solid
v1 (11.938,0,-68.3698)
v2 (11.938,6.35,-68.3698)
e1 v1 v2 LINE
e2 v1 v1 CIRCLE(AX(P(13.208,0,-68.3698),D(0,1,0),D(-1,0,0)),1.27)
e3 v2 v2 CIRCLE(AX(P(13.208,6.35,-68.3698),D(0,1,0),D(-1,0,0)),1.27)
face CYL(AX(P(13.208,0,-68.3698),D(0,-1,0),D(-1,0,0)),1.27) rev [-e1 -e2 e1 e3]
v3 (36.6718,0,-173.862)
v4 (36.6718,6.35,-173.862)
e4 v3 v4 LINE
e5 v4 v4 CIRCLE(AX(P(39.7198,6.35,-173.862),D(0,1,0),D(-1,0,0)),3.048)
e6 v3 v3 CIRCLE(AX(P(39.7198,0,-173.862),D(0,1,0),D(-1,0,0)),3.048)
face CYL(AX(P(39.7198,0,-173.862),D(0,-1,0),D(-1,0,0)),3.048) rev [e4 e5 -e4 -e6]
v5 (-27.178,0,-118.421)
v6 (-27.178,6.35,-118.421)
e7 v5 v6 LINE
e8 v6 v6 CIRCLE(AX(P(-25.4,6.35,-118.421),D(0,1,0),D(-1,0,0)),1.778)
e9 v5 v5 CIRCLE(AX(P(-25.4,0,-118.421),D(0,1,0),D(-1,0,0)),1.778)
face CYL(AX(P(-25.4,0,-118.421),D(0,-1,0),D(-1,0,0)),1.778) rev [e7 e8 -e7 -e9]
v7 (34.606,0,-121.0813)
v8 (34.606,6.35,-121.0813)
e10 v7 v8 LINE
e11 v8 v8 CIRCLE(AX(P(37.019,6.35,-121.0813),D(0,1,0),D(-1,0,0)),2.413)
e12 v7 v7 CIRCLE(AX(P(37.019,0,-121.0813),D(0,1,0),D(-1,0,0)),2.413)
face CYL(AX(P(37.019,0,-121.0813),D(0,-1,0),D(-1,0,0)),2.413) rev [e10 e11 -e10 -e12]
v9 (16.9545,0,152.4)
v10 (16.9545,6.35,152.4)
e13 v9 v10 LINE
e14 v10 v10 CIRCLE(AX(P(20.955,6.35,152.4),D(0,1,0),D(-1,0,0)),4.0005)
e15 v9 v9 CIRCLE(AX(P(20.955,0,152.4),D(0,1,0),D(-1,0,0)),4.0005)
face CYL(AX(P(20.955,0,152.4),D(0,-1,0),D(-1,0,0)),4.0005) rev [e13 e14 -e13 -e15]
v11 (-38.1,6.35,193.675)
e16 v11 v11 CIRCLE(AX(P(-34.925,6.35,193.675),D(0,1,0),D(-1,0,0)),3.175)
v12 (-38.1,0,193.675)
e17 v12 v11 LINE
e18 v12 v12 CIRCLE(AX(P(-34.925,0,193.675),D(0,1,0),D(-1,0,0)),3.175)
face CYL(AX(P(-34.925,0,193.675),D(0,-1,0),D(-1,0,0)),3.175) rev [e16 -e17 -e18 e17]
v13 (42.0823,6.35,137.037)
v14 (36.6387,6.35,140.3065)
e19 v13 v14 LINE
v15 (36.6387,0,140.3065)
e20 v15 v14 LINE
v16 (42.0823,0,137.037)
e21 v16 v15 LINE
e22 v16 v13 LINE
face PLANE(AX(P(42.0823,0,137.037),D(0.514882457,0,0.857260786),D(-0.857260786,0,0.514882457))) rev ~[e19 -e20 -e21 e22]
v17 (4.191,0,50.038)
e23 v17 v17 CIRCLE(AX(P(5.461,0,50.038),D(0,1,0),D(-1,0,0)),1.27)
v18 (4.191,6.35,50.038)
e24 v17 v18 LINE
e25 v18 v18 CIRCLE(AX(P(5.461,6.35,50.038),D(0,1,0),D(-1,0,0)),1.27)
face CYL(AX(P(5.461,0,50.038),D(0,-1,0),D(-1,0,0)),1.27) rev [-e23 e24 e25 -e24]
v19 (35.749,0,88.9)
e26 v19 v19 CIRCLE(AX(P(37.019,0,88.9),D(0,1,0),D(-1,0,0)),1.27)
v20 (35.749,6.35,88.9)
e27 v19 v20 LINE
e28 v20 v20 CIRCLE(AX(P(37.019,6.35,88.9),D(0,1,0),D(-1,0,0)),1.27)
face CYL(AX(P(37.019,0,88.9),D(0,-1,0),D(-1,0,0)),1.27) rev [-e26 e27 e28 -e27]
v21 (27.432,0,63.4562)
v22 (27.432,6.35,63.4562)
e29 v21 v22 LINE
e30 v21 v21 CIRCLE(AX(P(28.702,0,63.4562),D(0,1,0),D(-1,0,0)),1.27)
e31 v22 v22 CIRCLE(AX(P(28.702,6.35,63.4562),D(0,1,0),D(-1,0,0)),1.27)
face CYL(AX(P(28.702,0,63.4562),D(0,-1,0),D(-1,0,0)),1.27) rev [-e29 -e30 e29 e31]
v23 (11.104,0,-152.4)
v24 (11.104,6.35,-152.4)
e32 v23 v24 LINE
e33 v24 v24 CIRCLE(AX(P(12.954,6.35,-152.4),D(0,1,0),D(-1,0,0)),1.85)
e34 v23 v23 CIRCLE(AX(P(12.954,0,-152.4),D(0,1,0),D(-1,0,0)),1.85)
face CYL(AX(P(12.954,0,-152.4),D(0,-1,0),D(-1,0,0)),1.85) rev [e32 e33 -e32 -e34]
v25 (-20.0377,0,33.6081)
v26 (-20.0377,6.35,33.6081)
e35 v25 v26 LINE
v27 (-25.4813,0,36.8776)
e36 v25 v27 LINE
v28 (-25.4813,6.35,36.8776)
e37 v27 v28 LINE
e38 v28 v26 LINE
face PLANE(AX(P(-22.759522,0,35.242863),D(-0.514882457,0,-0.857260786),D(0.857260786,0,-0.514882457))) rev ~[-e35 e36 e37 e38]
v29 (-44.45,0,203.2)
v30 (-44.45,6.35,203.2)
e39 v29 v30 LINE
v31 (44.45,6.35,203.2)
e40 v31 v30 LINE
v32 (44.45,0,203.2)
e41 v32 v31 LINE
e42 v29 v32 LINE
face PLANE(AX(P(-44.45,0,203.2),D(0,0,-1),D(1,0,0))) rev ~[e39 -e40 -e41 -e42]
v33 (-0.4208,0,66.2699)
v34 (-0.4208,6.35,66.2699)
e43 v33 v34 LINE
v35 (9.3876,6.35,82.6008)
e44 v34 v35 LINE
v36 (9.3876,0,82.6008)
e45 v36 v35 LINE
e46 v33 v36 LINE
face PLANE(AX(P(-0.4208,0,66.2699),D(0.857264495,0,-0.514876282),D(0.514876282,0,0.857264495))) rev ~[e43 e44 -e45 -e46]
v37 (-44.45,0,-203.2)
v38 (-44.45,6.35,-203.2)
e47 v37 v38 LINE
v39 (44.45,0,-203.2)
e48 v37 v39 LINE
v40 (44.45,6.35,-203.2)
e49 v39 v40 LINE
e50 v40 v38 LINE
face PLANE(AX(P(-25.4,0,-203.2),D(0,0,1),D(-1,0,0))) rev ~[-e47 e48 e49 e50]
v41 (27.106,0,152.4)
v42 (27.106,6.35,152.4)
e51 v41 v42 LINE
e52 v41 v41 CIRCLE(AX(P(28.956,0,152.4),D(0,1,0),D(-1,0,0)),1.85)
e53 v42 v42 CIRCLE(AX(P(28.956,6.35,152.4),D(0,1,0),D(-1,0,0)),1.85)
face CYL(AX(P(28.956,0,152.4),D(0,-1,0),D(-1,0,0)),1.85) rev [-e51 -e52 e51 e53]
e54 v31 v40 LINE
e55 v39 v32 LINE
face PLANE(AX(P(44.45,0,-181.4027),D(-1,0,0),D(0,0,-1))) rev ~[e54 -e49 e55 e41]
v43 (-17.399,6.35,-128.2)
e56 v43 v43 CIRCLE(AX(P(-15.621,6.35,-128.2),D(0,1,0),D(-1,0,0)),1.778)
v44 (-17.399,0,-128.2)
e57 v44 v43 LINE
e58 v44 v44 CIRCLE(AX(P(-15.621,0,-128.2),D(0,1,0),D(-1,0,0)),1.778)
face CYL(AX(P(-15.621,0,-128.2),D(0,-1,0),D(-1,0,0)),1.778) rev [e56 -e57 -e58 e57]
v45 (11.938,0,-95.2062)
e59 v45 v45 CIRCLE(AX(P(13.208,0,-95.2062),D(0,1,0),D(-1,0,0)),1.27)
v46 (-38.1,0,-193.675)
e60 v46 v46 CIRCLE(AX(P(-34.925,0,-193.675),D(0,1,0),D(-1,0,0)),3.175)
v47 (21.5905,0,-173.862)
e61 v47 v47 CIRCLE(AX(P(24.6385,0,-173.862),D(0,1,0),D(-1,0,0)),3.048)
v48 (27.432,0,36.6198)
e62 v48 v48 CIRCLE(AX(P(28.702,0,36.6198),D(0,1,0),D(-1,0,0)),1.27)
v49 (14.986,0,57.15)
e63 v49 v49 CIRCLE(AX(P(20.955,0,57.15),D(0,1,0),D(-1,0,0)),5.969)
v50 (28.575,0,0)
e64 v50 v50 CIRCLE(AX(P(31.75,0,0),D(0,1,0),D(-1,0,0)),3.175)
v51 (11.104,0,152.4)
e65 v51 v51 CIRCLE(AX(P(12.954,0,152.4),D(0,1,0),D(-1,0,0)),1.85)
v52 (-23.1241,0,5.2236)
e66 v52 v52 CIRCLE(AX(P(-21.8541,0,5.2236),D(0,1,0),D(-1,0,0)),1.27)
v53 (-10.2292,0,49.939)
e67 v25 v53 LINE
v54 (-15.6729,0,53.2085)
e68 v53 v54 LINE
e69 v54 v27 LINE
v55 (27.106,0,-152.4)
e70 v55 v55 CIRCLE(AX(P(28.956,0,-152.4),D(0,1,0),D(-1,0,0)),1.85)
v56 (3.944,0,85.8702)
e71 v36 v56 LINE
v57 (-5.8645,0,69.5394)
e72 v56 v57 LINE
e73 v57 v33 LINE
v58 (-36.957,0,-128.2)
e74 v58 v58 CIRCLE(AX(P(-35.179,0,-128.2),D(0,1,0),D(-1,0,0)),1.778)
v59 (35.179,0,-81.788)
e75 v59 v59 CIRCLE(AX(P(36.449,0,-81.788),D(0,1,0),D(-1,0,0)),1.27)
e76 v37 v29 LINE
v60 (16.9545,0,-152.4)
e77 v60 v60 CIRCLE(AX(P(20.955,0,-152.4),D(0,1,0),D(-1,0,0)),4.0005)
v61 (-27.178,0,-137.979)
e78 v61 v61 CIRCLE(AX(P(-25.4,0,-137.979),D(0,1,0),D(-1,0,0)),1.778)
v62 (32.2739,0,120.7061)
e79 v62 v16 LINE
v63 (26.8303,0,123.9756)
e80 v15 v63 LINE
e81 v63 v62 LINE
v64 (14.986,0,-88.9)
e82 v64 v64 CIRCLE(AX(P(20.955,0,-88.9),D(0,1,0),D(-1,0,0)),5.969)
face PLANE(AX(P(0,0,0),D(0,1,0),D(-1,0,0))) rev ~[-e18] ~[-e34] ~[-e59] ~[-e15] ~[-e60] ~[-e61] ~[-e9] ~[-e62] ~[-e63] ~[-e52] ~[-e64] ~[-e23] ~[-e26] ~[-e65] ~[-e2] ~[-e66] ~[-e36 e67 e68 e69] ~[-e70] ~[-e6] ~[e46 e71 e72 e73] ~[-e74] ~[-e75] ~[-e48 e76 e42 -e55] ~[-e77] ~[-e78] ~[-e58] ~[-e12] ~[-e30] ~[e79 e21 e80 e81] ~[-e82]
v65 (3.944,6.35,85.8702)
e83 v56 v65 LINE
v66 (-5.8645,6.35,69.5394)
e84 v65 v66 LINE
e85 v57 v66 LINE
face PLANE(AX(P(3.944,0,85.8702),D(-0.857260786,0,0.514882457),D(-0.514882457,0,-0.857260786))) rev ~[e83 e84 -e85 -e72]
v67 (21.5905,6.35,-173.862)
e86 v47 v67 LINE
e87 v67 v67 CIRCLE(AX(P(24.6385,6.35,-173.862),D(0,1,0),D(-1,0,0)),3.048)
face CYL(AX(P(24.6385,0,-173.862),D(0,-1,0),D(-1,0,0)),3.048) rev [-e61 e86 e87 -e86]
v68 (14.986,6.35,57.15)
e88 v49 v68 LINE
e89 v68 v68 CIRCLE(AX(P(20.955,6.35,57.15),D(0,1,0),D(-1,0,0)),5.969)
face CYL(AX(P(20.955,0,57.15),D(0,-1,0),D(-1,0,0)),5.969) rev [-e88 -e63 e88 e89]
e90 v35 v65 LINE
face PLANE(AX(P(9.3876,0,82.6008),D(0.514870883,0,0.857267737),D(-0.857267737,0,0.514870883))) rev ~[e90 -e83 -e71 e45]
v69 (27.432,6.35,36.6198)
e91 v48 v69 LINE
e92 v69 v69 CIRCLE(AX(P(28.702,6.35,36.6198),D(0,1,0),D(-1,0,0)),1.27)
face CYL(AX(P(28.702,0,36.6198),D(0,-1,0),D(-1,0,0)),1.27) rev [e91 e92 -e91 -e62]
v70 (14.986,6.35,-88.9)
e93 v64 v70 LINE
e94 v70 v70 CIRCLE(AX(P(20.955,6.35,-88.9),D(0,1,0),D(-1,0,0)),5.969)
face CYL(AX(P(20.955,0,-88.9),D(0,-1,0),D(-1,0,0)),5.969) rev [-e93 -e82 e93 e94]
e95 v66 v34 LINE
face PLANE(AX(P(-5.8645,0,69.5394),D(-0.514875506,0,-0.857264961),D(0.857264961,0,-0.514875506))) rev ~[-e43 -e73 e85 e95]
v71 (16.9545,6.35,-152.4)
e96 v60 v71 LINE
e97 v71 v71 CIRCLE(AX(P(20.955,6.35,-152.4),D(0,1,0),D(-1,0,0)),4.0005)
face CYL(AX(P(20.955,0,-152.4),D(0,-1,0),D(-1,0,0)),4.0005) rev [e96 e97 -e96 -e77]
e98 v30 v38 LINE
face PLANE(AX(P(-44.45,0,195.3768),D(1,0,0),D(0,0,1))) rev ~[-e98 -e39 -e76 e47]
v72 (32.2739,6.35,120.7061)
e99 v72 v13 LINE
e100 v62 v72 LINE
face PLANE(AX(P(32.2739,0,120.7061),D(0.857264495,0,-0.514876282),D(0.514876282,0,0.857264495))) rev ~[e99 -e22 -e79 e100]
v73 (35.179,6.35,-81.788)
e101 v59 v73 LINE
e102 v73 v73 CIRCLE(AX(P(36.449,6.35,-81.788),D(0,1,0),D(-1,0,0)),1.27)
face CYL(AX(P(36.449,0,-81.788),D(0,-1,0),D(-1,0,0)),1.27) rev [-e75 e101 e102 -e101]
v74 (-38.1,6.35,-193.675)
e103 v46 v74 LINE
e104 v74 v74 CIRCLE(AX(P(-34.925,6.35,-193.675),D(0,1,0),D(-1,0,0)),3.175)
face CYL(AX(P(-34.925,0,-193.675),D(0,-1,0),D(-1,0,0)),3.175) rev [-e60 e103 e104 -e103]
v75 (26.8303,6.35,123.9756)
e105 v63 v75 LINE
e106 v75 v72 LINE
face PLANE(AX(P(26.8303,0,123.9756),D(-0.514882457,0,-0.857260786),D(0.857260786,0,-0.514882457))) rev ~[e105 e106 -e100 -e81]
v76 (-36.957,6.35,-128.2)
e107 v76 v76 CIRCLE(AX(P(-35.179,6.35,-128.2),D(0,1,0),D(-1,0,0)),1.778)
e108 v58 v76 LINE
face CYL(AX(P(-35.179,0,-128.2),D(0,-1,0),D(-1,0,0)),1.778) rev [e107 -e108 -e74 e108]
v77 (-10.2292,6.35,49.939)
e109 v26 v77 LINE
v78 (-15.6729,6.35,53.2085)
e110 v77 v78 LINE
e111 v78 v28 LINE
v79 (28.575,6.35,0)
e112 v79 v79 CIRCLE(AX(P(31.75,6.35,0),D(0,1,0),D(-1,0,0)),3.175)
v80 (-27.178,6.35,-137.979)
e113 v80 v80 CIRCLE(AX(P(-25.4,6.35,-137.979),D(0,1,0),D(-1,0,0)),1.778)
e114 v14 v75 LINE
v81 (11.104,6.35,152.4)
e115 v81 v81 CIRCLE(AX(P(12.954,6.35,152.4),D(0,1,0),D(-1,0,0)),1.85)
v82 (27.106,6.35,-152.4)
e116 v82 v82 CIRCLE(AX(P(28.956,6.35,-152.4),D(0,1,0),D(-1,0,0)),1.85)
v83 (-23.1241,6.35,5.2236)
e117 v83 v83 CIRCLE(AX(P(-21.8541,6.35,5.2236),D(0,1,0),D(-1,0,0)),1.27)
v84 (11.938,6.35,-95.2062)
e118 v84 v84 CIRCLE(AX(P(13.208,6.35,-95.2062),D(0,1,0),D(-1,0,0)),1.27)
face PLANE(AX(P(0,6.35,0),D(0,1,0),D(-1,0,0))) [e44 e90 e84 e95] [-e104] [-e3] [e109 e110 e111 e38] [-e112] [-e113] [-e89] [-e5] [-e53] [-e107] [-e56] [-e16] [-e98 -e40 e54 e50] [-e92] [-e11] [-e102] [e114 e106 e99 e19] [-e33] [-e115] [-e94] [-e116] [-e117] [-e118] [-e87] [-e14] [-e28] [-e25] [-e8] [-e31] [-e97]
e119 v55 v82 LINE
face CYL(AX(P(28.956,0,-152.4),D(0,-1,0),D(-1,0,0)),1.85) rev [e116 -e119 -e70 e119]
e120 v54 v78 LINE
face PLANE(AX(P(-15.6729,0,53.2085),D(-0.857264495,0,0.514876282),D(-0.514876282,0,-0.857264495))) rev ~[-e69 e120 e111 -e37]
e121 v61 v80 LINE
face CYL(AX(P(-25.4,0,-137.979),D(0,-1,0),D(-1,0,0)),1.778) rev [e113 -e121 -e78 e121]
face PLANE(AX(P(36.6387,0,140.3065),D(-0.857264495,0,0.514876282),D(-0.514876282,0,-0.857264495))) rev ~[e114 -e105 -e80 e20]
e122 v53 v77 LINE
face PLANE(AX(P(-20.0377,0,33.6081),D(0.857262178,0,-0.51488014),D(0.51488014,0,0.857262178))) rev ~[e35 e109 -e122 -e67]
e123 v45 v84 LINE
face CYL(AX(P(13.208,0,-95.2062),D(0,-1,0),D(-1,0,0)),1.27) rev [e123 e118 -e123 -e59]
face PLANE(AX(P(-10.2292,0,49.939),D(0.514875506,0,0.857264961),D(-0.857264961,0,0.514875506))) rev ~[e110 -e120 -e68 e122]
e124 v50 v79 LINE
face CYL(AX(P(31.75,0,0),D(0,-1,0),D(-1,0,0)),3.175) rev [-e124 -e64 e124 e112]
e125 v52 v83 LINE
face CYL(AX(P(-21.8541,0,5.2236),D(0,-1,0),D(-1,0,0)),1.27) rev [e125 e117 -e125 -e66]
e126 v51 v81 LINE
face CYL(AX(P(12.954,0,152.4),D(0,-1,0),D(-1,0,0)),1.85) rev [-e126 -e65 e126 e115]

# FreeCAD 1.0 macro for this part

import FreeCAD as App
import Part
import Sketcher
from FreeCAD import Vector
Q = App.Units.Quantity


def add_polygon(sketch, points):
    """Adds a closed chain of lines whose ends are joined by coincident constraints."""
    first, n = sketch.GeometryCount, len(points)
    for a, b in zip(points, points[1:] + points[:1]):
        sketch.addGeometry(Part.LineSegment(App.Vector(*a, 0), App.Vector(*b, 0)), False)
    for i in range(n):
        sketch.addConstraint(Sketcher.Constraint("Coincident", first + i, 2, first + (i + 1) % n, 1))

doc = App.newDocument("Part")
params = doc.addObject("Spreadsheet::Sheet", "Params")
for row, (alias, value) in enumerate([
    ("sketch1_diameter", "0.1 in"),
    ("sketch1_diameter2", "0.24 in"),
    ("sketch1_diameter3", "0.19 in"),
    ("sketch1_diameter4", "0.25 in"),
    ("sketch1_diameter5", "0.47 in"),
    ("pad1_length", "0.25 in"),
], start=1):
    params.set(f"A{row}", alias)
    params.set(f"B{row}", "=" + value)
    params.setAlias(f"B{row}", alias)

body = doc.addObject("PartDesign::Body", "Body")

sketch1 = body.newObject("Sketcher::SketchObject", "Sketch")
sketch1.AttachmentSupport = (doc.getObject("XZ_Plane"), [""])
sketch1.MapMode = "FlatFace"
add_polygon(sketch1, [(-44.5, 203.2), (44.5, 203.2), (44.5, -203.2), (-44.5, -203.2)])
sketch1.addGeometry(Part.Circle(Vector(39.7, -173.9, 0), Vector(0, 0, 1), 3), False)
sketch1.addGeometry(Part.Circle(Vector(29, -152.4, 0), Vector(0, 0, 1), 1.9), False)
sketch1.addGeometry(Part.Circle(Vector(24.6, -173.9, 0), Vector(0, 0, 1), 3), False)
sketch1.addGeometry(Part.Circle(Vector(37, -121.1, 0), Vector(0, 0, 1), 2.4), False)
sketch1.addGeometry(Part.Circle(Vector(21, -152.4, 0), Vector(0, 0, 1), 4), False)
sketch1.addGeometry(Part.Circle(Vector(13, -152.4, 0), Vector(0, 0, 1), 1.9), False)
sketch1.addGeometry(Part.Circle(Vector(36.4, -81.8, 0), Vector(0, 0, 1), 1.3), False)
sketch1.addGeometry(Part.Circle(Vector(31.8, 0, 0), Vector(0, 0, 1), 3.2), False)
sketch1.addGeometry(Part.Circle(Vector(21, -88.9, 0), Vector(0, 0, 1), 6), False)
sketch1.addGeometry(Part.Circle(Vector(13.2, -95.2, 0), Vector(0, 0, 1), 1.3), False)
sketch1.addGeometry(Part.Circle(Vector(13.2, -68.4, 0), Vector(0, 0, 1), 1.3), False)
sketch1.addGeometry(Part.Circle(Vector(-15.6, -128.2, 0), Vector(0, 0, 1), 1.8), False)
sketch1.addGeometry(Part.Circle(Vector(-34.9, -193.7, 0), Vector(0, 0, 1), 3.2), False)
sketch1.addGeometry(Part.Circle(Vector(-25.4, -138, 0), Vector(0, 0, 1), 1.8), False)
sketch1.addGeometry(Part.Circle(Vector(-25.4, -118.4, 0), Vector(0, 0, 1), 1.8), False)
sketch1.addGeometry(Part.Circle(Vector(-35.2, -128.2, 0), Vector(0, 0, 1), 1.8), False)
sketch1.addGeometry(Part.Circle(Vector(28.7, 36.6, 0), Vector(0, 0, 1), 1.3), False)
sketch1.addGeometry(Part.Circle(Vector(37, 88.9, 0), Vector(0, 0, 1), 1.3), False)
sketch1.addGeometry(Part.Circle(Vector(28.7, 63.5, 0), Vector(0, 0, 1), 1.3), False)
sketch1.addGeometry(Part.Circle(Vector(5.5, 50, 0), Vector(0, 0, 1), 1.3), False)
sketch1.addGeometry(Part.Circle(Vector(21, 57.1, 0), Vector(0, 0, 1), 6), False)
add_polygon(sketch1, [(-0.4, 66.3), (9.4, 82.6), (3.9, 85.9), (-5.9, 69.5)])
add_polygon(sketch1, [(42.1, 137), (36.6, 140.3), (26.8, 124), (32.3, 120.7)])
sketch1.addGeometry(Part.Circle(Vector(29, 152.4, 0), Vector(0, 0, 1), 1.9), False)
sketch1.addGeometry(Part.Circle(Vector(21, 152.4, 0), Vector(0, 0, 1), 4), False)
sketch1.addGeometry(Part.Circle(Vector(13, 152.4, 0), Vector(0, 0, 1), 1.9), False)
sketch1.addGeometry(Part.Circle(Vector(-21.9, 5.2, 0), Vector(0, 0, 1), 1.3), False)
add_polygon(sketch1, [(-10.2, 49.9), (-15.7, 53.2), (-25.5, 36.9), (-20, 33.6)])
sketch1.addGeometry(Part.Circle(Vector(-34.9, 193.7, 0), Vector(0, 0, 1), 3.2), False)
sketch1.addConstraint([
    Sketcher.Constraint("Horizontal", 0),
    Sketcher.Constraint("Vertical", 1),
    Sketcher.Constraint("Horizontal", 2),
    Sketcher.Constraint("Vertical", 3),
    Sketcher.Constraint("Equal", 4, 6),
    Sketcher.Constraint("Equal", 5, 9),
    Sketcher.Constraint("Equal", 10, 13),
    Sketcher.Constraint("Equal", 13, 14),
    Sketcher.Constraint("Equal", 11, 16),
    Sketcher.Constraint("Equal", 15, 17),
    Sketcher.Constraint("Equal", 17, 18),
    Sketcher.Constraint("Equal", 18, 19),
    Sketcher.Constraint("Equal", 14, 20),
    Sketcher.Constraint("Equal", 20, 21),
    Sketcher.Constraint("Equal", 21, 22),
    Sketcher.Constraint("Equal", 22, 23),
    Sketcher.Constraint("Equal", 12, 24),
    Sketcher.Constraint("Equal", 9, 33),
    Sketcher.Constraint("Equal", 8, 34),
    Sketcher.Constraint("Equal", 33, 35),
    Sketcher.Constraint("Equal", 23, 36),
    Sketcher.Constraint("Equal", 16, 41),
    Sketcher.Constraint("Symmetric", 0, 2, 2, 2, -1, 1),
    Sketcher.Constraint("Symmetric", 5, 3, 33, 3, -1),
    Sketcher.Constraint("Symmetric", 8, 3, 34, 3, -1),
    Sketcher.Constraint("Symmetric", 9, 3, 35, 3, -1),
    Sketcher.Constraint("Symmetric", 16, 3, 41, 3, -1),
    Sketcher.Constraint("PointOnObject", 11, 3, -1),
    Sketcher.Constraint("Perpendicular", 25, 26),
    Sketcher.Constraint("Perpendicular", 26, 27),
    Sketcher.Constraint("Perpendicular", 27, 28),
    Sketcher.Constraint("Parallel", 28, 29),
    Sketcher.Constraint("Perpendicular", 29, 30),
    Sketcher.Constraint("Perpendicular", 30, 31),
    Sketcher.Constraint("Perpendicular", 31, 32),
    Sketcher.Constraint("Perpendicular", 32, 37),
    Sketcher.Constraint("Perpendicular", 37, 38),
    Sketcher.Constraint("Perpendicular", 38, 39),
    Sketcher.Constraint("Perpendicular", 39, 40),
    Sketcher.Constraint("Horizontal", 4, 3, 6, 3),
    Sketcher.Constraint("Horizontal", 5, 3, 8, 3),
    Sketcher.Constraint("Horizontal", 8, 3, 9, 3),
    Sketcher.Constraint("Horizontal", 15, 3, 19, 3),
    Sketcher.Constraint("Vertical", 8, 3, 12, 3),
    Sketcher.Constraint("Vertical", 13, 3, 14, 3),
    Sketcher.Constraint("Vertical", 17, 3, 18, 3),
    Sketcher.Constraint("Vertical", 7, 3, 21, 3),
    Sketcher.Constraint("Vertical", 20, 3, 22, 3),
    Sketcher.Constraint("Vertical", 12, 3, 24, 3),
    Sketcher.Constraint("Equal", 28, 29),
    Sketcher.Constraint("Equal", 27, 30),
    Sketcher.Constraint("Equal", 31, 37),
    Sketcher.Constraint("Equal", 32, 38),
    Sketcher.Constraint("Diameter", 10, Q("0.1 in")),
    Sketcher.Constraint("Diameter", 4, Q("0.24 in")),
    Sketcher.Constraint("Diameter", 7, Q("0.19 in")),
    Sketcher.Constraint("Diameter", 11, Q("0.25 in")),
    Sketcher.Constraint("Diameter", 12, Q("0.47 in")),
    Sketcher.Constraint("Diameter", 15, Q("0.14 in")),
    Sketcher.Constraint("DistanceY", 1, 2, 1, 1, Q("16 in")),
    Sketcher.Constraint("Diameter", 8, Q("0.315 in")),
    Sketcher.Constraint("DistanceX", 0, 1, 0, 2, Q("3.5 in")),
    Sketcher.Constraint("DistanceX", 17, 3, -1, 1, Q("1 in")),
    Sketcher.Constraint("DistanceY", 12, 3, -1, 1, Q("3.5 in")),
    Sketcher.Constraint("DistanceY", -1, 1, 21, 3, Q("3.5 in")),
    Sketcher.Constraint("DistanceY", 8, 3, 12, 3, Q("2.5 in")),
    Sketcher.Constraint("Distance", 25, Q("0.75 in")),
    Sketcher.Constraint("Distance", 26, Q("0.25 in")),
    Sketcher.Constraint("Diameter", 5, 3.7),
    Sketcher.Constraint("DistanceX", 9, 3, 5, 3, Q("0.63 in")),
    Sketcher.Constraint("DistanceY", 12, 3, 10, 3, Q("0.28 in")),
    Sketcher.Constraint("DistanceY", 17, 3, 18, 3, Q("0.77 in")),
    Sketcher.Constraint("DistanceX", 19, 3, 15, 3, Q("0.77 in")),
    Sketcher.Constraint("DistanceY", 23, 3, 24, 3, Q("0.28 in")),
    Sketcher.Constraint("DistanceX", 6, 3, 4, 3, Q("0.593752 in")),
    Sketcher.Constraint("DistanceX", 8, 3, 5, 3, Q("0.315 in")),
    Sketcher.Constraint("DistanceX", 16, 3, 17, 3, Q("0.375 in")),
    Sketcher.Constraint("DistanceY", 41, 3, 0, 2, Q("0.375 in")),
    Sketcher.Constraint("DistanceX", 16, 3, 8, 3, Q("2.2 in")),
    Sketcher.Constraint("DistanceX", -1, 1, 11, 3, Q("1.25 in")),
    Sketcher.Constraint("DistanceX", -1, 1, 13, 3, Q("0.52 in")),
    Sketcher.Constraint("DistanceX", -1, 1, 20, 3, Q("1.13 in")),
    Sketcher.Constraint("DistanceY", -1, 1, 23, 3, Q("1.97 in")),
    Sketcher.Constraint("Angle", 25, Q("59.0108 deg")),
    Sketcher.Constraint("DistanceX", 8, 3, 10, 3, Q("0.61 in")),
    Sketcher.Constraint("DistanceX", 15, 3, 8, 3, Q("1.44 in")),
    Sketcher.Constraint("DistanceY", 13, 3, 20, 3, Q("5.19 in")),
    Sketcher.Constraint("DistanceY", 14, 3, 22, 3, Q("5.19 in")),
    Sketcher.Constraint("DistanceX", 23, 3, 24, 3, Q("0.61 in")),
    Sketcher.Constraint("DistanceY", 2, 2, 19, 3, 75.0),
    Sketcher.Constraint("DistanceY", -1, 1, 25, 2, Q("3.252 in")),
    Sketcher.Constraint("DistanceY", 17, 3, 15, 3, Q("0.385 in")),
    Sketcher.Constraint("DistanceX", 36, 3, -1, 1, Q("0.8604 in")),
    Sketcher.Constraint("DistanceX", -1, 1, 25, 2, Q("0.3696 in")),
    Sketcher.Constraint("DistanceX", -1, 1, 30, 2, Q("1.0563 in")),
    Sketcher.Constraint("DistanceY", -1, 1, 31, 2, Q("4.7522 in")),
    Sketcher.Constraint("DistanceX", 38, 2, -1, 1, Q("1.0032 in")),
    Sketcher.Constraint("DistanceY", -1, 1, 40, 2, Q("1.9661 in")),
    Sketcher.Constraint("DistanceY", 7, 3, 13, 3, Q("1.0187 in")),
    Sketcher.Constraint("DistanceY", 22, 3, 27, 2, Q("0.2395 in")),
    Sketcher.Constraint("DistanceY", 36, 3, 39, 2, Q("1.1175 in")),
    Sketcher.Constraint("DistanceX", -1, 1, 4, 3, 39.7198),
    Sketcher.Constraint("DistanceY", 4, 3, -1, 1, 173.862),
    Sketcher.Constraint("DistanceX", -1, 1, 7, 3, 37.019),
    Sketcher.Constraint("DistanceY", 7, 3, -1, 1, 121.0813),
])
sketch1.setExpression("Constraints[69]", "Params.sketch1_diameter")
sketch1.setExpression("Constraints[70]", "Params.sketch1_diameter2")
sketch1.setExpression("Constraints[71]", "Params.sketch1_diameter3")
sketch1.setExpression("Constraints[72]", "Params.sketch1_diameter4")
sketch1.setExpression("Constraints[73]", "Params.sketch1_diameter5")
pad1 = body.newObject("PartDesign::Pad", "Pad")
pad1.Profile = sketch1
pad1.setExpression("Length", "Params.pad1_length")
pad1.Reversed = True

doc.recompute()
